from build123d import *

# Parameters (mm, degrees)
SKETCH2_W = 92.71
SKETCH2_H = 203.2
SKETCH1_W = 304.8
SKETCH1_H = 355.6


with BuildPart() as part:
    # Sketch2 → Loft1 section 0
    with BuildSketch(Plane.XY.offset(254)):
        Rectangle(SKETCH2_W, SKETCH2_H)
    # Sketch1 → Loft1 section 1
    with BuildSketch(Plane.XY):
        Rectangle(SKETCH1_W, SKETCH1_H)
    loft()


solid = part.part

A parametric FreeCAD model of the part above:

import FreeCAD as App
import Part
import Sketcher
from FreeCAD import Vector
Q = App.Units.Quantity

doc = App.newDocument("Part")
body = doc.addObject("PartDesign::Body", "Body")

# Sketch on XY plane
sketch1 = doc.addObject("Sketcher::SketchObject", "Sketch")
body.addObject(sketch1)
sketch1.AttachmentSupport = (doc.XY_Plane, [""])
sketch1.MapMode = "FlatFace"
sketch1.AttachmentOffset = App.Placement(Vector(0, 0, 10 * 25.4), App.Rotation())
sketch1.addGeometry([
    Part.LineSegment(Vector(-46, 102, 0), Vector(-46, -102, 0)),
    Part.LineSegment(Vector(-46, -102, 0), Vector(46, -102, 0)),
    Part.LineSegment(Vector(46, -102, 0), Vector(46, 102, 0)),
    Part.LineSegment(Vector(46, 102, 0), Vector(-46, 102, 0)),
], False)
sketch1.addConstraint([
    Sketcher.Constraint("Coincident", 0, 2, 1, 1),
    Sketcher.Constraint("Coincident", 1, 2, 2, 1),
    Sketcher.Constraint("Coincident", 2, 2, 3, 1),
    Sketcher.Constraint("Coincident", 3, 2, 0, 1),
    Sketcher.Constraint("Vertical", 0),
    Sketcher.Constraint("Horizontal", 1),
    Sketcher.Constraint("Vertical", 2),
    Sketcher.Constraint("Horizontal", 3),
    Sketcher.Constraint("Symmetric", 0, 2, 2, 2, -1, 1),
    Sketcher.Constraint("DistanceY", 0, 2, 0, 1, Q("8 in")),
    Sketcher.Constraint("DistanceX", 1, 1, 1, 2, Q("3.65 in")),
])

# Sketch on XY plane
sketch2 = doc.addObject("Sketcher::SketchObject", "Sketch001")
body.addObject(sketch2)
sketch2.AttachmentSupport = (doc.XY_Plane, [""])
sketch2.MapMode = "FlatFace"
sketch2.addGeometry([
    Part.LineSegment(Vector(-152, 178, 0), Vector(-152, -178, 0)),
    Part.LineSegment(Vector(-152, -178, 0), Vector(152, -178, 0)),
    Part.LineSegment(Vector(152, -178, 0), Vector(152, 178, 0)),
    Part.LineSegment(Vector(152, 178, 0), Vector(-152, 178, 0)),
], False)
sketch2.addConstraint([
    Sketcher.Constraint("Coincident", 0, 2, 1, 1),
    Sketcher.Constraint("Coincident", 1, 2, 2, 1),
    Sketcher.Constraint("Coincident", 2, 2, 3, 1),
    Sketcher.Constraint("Coincident", 3, 2, 0, 1),
    Sketcher.Constraint("Vertical", 0),
    Sketcher.Constraint("Horizontal", 1),
    Sketcher.Constraint("Vertical", 2),
    Sketcher.Constraint("Horizontal", 3),
    Sketcher.Constraint("Symmetric", 0, 2, 2, 2, -1, 1),
    Sketcher.Constraint("DistanceX", 1, 1, 1, 2, Q("12 in")),
    Sketcher.Constraint("DistanceY", 0, 2, 0, 1, Q("14 in")),
])

additiveloft = doc.addObject("PartDesign::AdditiveLoft", "AdditiveLoft")
body.addObject(additiveloft)
additiveloft.Profile = sketch1
additiveloft.Sections = [sketch2]

doc.recompute()
